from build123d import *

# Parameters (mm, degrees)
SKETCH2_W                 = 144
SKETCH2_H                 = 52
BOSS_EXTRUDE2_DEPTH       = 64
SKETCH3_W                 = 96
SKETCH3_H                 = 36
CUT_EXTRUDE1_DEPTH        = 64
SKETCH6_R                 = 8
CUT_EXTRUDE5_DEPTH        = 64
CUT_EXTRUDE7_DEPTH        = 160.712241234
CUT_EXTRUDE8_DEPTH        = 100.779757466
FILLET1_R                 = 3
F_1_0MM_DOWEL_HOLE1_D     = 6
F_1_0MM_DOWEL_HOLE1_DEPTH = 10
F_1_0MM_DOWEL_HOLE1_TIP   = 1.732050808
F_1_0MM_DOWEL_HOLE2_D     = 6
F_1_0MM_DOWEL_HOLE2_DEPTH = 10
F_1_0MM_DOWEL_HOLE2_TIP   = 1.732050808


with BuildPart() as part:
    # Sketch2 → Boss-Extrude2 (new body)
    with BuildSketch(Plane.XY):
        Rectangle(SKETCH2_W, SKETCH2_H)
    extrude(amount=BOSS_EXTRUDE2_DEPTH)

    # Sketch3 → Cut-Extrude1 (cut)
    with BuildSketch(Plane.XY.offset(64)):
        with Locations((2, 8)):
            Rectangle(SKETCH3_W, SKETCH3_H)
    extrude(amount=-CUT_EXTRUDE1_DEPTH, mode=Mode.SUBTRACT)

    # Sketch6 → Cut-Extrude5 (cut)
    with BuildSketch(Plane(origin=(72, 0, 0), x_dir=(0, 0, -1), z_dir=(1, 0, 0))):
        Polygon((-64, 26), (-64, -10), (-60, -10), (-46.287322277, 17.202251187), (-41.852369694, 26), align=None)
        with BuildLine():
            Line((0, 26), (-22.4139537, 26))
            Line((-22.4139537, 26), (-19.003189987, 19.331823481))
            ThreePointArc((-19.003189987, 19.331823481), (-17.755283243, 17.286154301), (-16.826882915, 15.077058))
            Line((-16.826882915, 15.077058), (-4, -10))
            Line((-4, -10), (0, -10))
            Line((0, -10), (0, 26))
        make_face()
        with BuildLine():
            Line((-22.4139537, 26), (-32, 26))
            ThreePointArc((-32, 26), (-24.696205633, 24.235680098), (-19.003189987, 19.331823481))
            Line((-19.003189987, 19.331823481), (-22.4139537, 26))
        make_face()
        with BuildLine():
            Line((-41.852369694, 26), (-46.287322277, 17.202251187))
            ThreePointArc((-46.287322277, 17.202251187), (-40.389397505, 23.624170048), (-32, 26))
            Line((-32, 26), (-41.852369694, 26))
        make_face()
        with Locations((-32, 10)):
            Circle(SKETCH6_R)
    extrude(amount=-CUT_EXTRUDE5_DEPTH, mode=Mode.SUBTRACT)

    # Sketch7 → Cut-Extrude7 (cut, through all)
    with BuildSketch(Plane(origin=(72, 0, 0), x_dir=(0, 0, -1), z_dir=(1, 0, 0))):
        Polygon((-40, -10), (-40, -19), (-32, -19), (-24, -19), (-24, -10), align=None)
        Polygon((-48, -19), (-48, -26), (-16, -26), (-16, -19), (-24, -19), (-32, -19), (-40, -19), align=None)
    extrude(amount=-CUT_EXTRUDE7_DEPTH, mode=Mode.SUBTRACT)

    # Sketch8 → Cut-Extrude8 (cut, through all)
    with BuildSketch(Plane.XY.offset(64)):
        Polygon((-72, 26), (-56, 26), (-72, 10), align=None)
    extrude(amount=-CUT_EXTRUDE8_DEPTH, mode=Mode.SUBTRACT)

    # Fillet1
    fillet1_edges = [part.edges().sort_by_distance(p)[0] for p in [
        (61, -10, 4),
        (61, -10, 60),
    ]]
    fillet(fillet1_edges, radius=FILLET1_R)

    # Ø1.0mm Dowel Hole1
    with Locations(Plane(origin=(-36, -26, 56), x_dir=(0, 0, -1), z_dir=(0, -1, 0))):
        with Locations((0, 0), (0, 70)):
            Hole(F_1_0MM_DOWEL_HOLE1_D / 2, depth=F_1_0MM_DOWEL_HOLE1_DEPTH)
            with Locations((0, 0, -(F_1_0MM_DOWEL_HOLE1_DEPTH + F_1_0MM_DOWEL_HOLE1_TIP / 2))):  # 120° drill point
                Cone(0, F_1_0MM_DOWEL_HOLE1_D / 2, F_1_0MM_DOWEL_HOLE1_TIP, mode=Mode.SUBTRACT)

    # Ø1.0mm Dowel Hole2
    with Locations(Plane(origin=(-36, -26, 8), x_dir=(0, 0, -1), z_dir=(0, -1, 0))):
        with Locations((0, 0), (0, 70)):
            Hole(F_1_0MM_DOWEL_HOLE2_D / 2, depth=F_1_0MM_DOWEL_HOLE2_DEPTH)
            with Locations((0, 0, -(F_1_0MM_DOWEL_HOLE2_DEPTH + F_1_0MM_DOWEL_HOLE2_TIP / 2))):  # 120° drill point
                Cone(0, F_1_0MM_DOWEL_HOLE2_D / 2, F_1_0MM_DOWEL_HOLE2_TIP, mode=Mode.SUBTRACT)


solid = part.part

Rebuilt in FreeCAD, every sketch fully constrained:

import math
import FreeCAD as App
import Part
import Sketcher
Q = App.Units.Quantity


def edges_at(feature, points):
    """Names of the edges that pass closest to the given points."""
    edges = feature.Shape.Edges
    near = lambda p: min(range(len(edges)), key=lambda i: edges[i].distToShape(Part.Vertex(*p))[0])
    return sorted({f"Edge{near(p) + 1}" for p in points})


def add_polygon(sketch, points):
    """Adds a closed chain of lines whose ends are joined by coincident constraints."""
    first, n = sketch.GeometryCount, len(points)
    for a, b in zip(points, points[1:] + points[:1]):
        sketch.addGeometry(Part.LineSegment(App.Vector(*a, 0), App.Vector(*b, 0)), False)
    for i in range(n):
        sketch.addConstraint(Sketcher.Constraint("Coincident", first + i, 2, first + (i + 1) % n, 1))

doc = App.newDocument("Part")
body = doc.addObject("PartDesign::Body", "Body")

# Sketch on XY plane
sketch1 = body.newObject("Sketcher::SketchObject", "Sketch")
sketch1.AttachmentSupport = (doc.getObject("XY_Plane"), [""])
sketch1.MapMode = "FlatFace"
add_polygon(sketch1, [(-72, 26), (-72, -26), (72, -26), (72, 26)])  # lines 0-3
sketch1.addConstraint(Sketcher.Constraint("Vertical", 0))
sketch1.addConstraint(Sketcher.Constraint("Horizontal", 1))
sketch1.addConstraint(Sketcher.Constraint("Vertical", 2))
sketch1.addConstraint(Sketcher.Constraint("Horizontal", 3))
sketch1.addConstraint(Sketcher.Constraint("Symmetric", 0, 2, 2, 2, -1, 1))
sketch1.addConstraint(Sketcher.Constraint("DistanceX", 1, 1, 1, 2, Q("144 mm")))
sketch1.addConstraint(Sketcher.Constraint("DistanceY", 0, 2, 0, 1, Q("52 mm")))
pad1 = body.newObject("PartDesign::Pad", "Pad")
pad1.Profile = sketch1
pad1.Length = 64

# Sketch on XY plane
sketch2 = body.newObject("Sketcher::SketchObject", "Sketch001")
sketch2.AttachmentSupport = (doc.getObject("XY_Plane"), [""])
sketch2.MapMode = "FlatFace"
sketch2.AttachmentOffset = App.Placement(App.Vector(0, 0, 64), App.Rotation())
add_polygon(sketch2, [(-46, 26), (-46, -10), (50, -10), (50, 26)])  # lines 0-3
sketch2.addConstraint(Sketcher.Constraint("Vertical", 0))
sketch2.addConstraint(Sketcher.Constraint("Horizontal", 1))
sketch2.addConstraint(Sketcher.Constraint("Vertical", 2))
sketch2.addConstraint(Sketcher.Constraint("Horizontal", 3))
sketch2.addConstraint(Sketcher.Constraint("DistanceX", 1, 1, 1, 2, Q("96 mm")))
sketch2.addConstraint(Sketcher.Constraint("DistanceY", 0, 2, 0, 1, Q("36 mm")))
sketch2.addConstraint(Sketcher.Constraint("DistanceX", 0, 2, -1, 1, Q("46 mm")))
sketch2.addConstraint(Sketcher.Constraint("DistanceY", 0, 2, -1, 1, Q("10 mm")))
pocket1 = body.newObject("PartDesign::Pocket", "Pocket")
pocket1.Profile = sketch2
pocket1.Length = 64

# Sketch on YZ plane
sketch3 = body.newObject("Sketcher::SketchObject", "Sketch002")
sketch3.AttachmentSupport = (doc.getObject("YZ_Plane"), [""])
sketch3.MapMode = "FlatFace"
sketch3.AttachmentOffset = App.Placement(App.Vector(0, 0, 72), App.Rotation())
sketch3.addGeometry(Part.LineSegment(App.Vector(26, 64, 0), App.Vector(-10, 64, 0)), False)
sketch3.addGeometry(Part.LineSegment(App.Vector(-10, 64, 0), App.Vector(-10, 60, 0)), False)
sketch3.addGeometry(Part.LineSegment(App.Vector(-10, 60, 0), App.Vector(17.2, 46.3, 0)), False)
sketch3.addGeometry(Part.ArcOfCircle(Part.Circle(App.Vector(10, 32, 0), App.Vector(0, 0, 1), 16), math.radians(0), math.radians(63)), False)
sketch3.addGeometry(Part.LineSegment(App.Vector(26, 32, 0), App.Vector(26, 64, 0)), False)
sketch3.addGeometry(Part.LineSegment(App.Vector(26, 0, 0), App.Vector(26, 32, 0)), False)
sketch3.addGeometry(Part.ArcOfCircle(Part.Circle(App.Vector(10, 32, 0), App.Vector(0, 0, 1), 16), math.radians(-54), math.radians(0)), False)
sketch3.addGeometry(Part.ArcOfCircle(Part.Circle(App.Vector(10, 32, 0), App.Vector(0, 0, 1), 16), math.radians(-71.5), math.radians(-54.32)), False)
sketch3.addGeometry(Part.LineSegment(App.Vector(15.1, 16.8, 0), App.Vector(-10, 4, 0)), False)
sketch3.addGeometry(Part.LineSegment(App.Vector(-10, 4, 0), App.Vector(-10, 0, 0)), False)
sketch3.addGeometry(Part.LineSegment(App.Vector(-10, 0, 0), App.Vector(26, 0, 0)), False)
sketch3.addGeometry(Part.Circle(App.Vector(10, 32, 0), App.Vector(0, 0, 1), 8), False)
sketch3.addConstraint(Sketcher.Constraint("Coincident", 0, 2, 1, 1))
sketch3.addConstraint(Sketcher.Constraint("Coincident", 1, 2, 2, 1))
sketch3.addConstraint(Sketcher.Constraint("Tangent", 2, 2, 3, 2))
sketch3.addConstraint(Sketcher.Constraint("Tangent", 3, 1, 4, 1))
sketch3.addConstraint(Sketcher.Constraint("Coincident", 4, 2, 0, 1))
sketch3.addConstraint(Sketcher.Constraint("Tangent", 5, 2, 6, 2))
sketch3.addConstraint(Sketcher.Constraint("Tangent", 6, 1, 7, 2))
sketch3.addConstraint(Sketcher.Constraint("Coincident", 7, 1, 8, 1))
sketch3.addConstraint(Sketcher.Constraint("Coincident", 8, 2, 9, 1))
sketch3.addConstraint(Sketcher.Constraint("Coincident", 9, 2, 10, 1))
sketch3.addConstraint(Sketcher.Constraint("Coincident", 10, 2, 5, 1))
sketch3.addConstraint(Sketcher.Constraint("Horizontal", 0))
sketch3.addConstraint(Sketcher.Constraint("Vertical", 1))
sketch3.addConstraint(Sketcher.Constraint("Vertical", 4))
sketch3.addConstraint(Sketcher.Constraint("Vertical", 5))
sketch3.addConstraint(Sketcher.Constraint("Vertical", 9))
sketch3.addConstraint(Sketcher.Constraint("Horizontal", 10))
sketch3.addConstraint(Sketcher.Constraint("Coincident", 6, 3, 3, 3))
sketch3.addConstraint(Sketcher.Constraint("Coincident", 11, 3, 3, 3))
sketch3.addConstraint(Sketcher.Constraint("Equal", 3, 6))
sketch3.addConstraint(Sketcher.Constraint("Equal", 6, 7))
sketch3.addConstraint(Sketcher.Constraint("PointOnObject", 9, 2, -1))
sketch3.addConstraint(Sketcher.Constraint("Vertical", 1, 2, 8, 2))
sketch3.addConstraint(Sketcher.Constraint("Equal", 4, 5))
sketch3.addConstraint(Sketcher.Constraint("Equal", 1, 9))
sketch3.addConstraint(Sketcher.Constraint("Diameter", 11, Q("16 mm")))
sketch3.addConstraint(Sketcher.Constraint("Radius", 3, Q("16 mm")))
sketch3.addConstraint(Sketcher.Constraint("DistanceX", 0, 2, 0, 1, Q("36 mm")))
sketch3.addConstraint(Sketcher.Constraint("DistanceY", 1, 2, 1, 1, Q("4 mm")))
sketch3.addConstraint(Sketcher.Constraint("DistanceY", 4, 1, 4, 2, Q("32 mm")))
sketch3.addConstraint(Sketcher.Constraint("DistanceX", -1, 1, 3, 3, Q("10 mm")))
sketch3.addConstraint(Sketcher.Constraint("Distance", 8, Q("28.16714 mm")))
sketch3.addConstraint(Sketcher.Constraint("DistanceY", -1, 1, 6, 1, Q("19.00319 mm")))
pocket2 = body.newObject("PartDesign::Pocket", "Pocket001")
pocket2.Profile = sketch3
pocket2.Length = 64

# Sketch on YZ plane
sketch4 = body.newObject("Sketcher::SketchObject", "Sketch003")
sketch4.AttachmentSupport = (doc.getObject("YZ_Plane"), [""])
sketch4.MapMode = "FlatFace"
sketch4.AttachmentOffset = App.Placement(App.Vector(0, 0, 72), App.Rotation())
add_polygon(sketch4, [(-10, 40), (-19, 40), (-19, 48), (-26, 48), (-26, 16), (-19, 16), (-19, 24), (-10, 24)])  # lines 0-7
sketch4.addConstraint(Sketcher.Constraint("Horizontal", 0))
sketch4.addConstraint(Sketcher.Constraint("Vertical", 1))
sketch4.addConstraint(Sketcher.Constraint("Horizontal", 2))
sketch4.addConstraint(Sketcher.Constraint("Vertical", 3))
sketch4.addConstraint(Sketcher.Constraint("Horizontal", 4))
sketch4.addConstraint(Sketcher.Constraint("Vertical", 5))
sketch4.addConstraint(Sketcher.Constraint("Horizontal", 6))
sketch4.addConstraint(Sketcher.Constraint("Vertical", 7))
sketch4.addConstraint(Sketcher.Constraint("Vertical", 1, 2, 4, 2))
sketch4.addConstraint(Sketcher.Constraint("Equal", 1, 5))
sketch4.addConstraint(Sketcher.Constraint("DistanceX", 0, 2, 0, 1, Q("9 mm")))
sketch4.addConstraint(Sketcher.Constraint("DistanceX", 2, 2, 2, 1, Q("7 mm")))
sketch4.addConstraint(Sketcher.Constraint("DistanceY", 1, 1, 1, 2, Q("8 mm")))
sketch4.addConstraint(Sketcher.Constraint("DistanceY", 3, 2, 3, 1, Q("32 mm")))
sketch4.addConstraint(Sketcher.Constraint("DistanceX", 0, 2, -1, 1, Q("19 mm")))
sketch4.addConstraint(Sketcher.Constraint("DistanceY", -1, 1, 0, 2, Q("40 mm")))
pocket3 = body.newObject("PartDesign::Pocket", "Pocket002")
pocket3.Profile = sketch4
pocket3.Type = "ThroughAll"

# Sketch on XY plane
sketch5 = body.newObject("Sketcher::SketchObject", "Sketch004")
sketch5.AttachmentSupport = (doc.getObject("XY_Plane"), [""])
sketch5.MapMode = "FlatFace"
sketch5.AttachmentOffset = App.Placement(App.Vector(0, 0, 64), App.Rotation())
add_polygon(sketch5, [(-56, 26), (-72, 26), (-72, 10)])  # lines 0-2
sketch5.addConstraint(Sketcher.Constraint("Horizontal", 0))
sketch5.addConstraint(Sketcher.Constraint("Vertical", 1))
sketch5.addConstraint(Sketcher.Constraint("Equal", 0, 1))
sketch5.addConstraint(Sketcher.Constraint("DistanceX", 0, 2, 0, 1, Q("16 mm")))
sketch5.addConstraint(Sketcher.Constraint("DistanceX", 0, 2, -1, 1, Q("72 mm")))
sketch5.addConstraint(Sketcher.Constraint("DistanceY", -1, 1, 0, 2, Q("26 mm")))
pocket4 = body.newObject("PartDesign::Pocket", "Pocket003")
pocket4.Profile = sketch5
pocket4.Type = "ThroughAll"
doc.recompute()

fillet = body.newObject("PartDesign::Fillet", "Fillet")
fillet.Base = (pocket4, edges_at(pocket4, [(61, -10, 4), (61, -10, 60)]))
fillet.Radius = 3

# Sketch on XZ plane
sketch6 = body.newObject("Sketcher::SketchObject", "Sketch005")
sketch6.AttachmentSupport = (doc.getObject("XZ_Plane"), [""])
sketch6.MapMode = "FlatFace"
sketch6.AttachmentOffset = App.Placement(App.Vector(0, 0, 26), App.Rotation())
sketch6.addGeometry(Part.Circle(App.Vector(-36, 56, 0), App.Vector(0, 0, 1), 3), False)
sketch6.addGeometry(Part.Circle(App.Vector(34, 56, 0), App.Vector(0, 0, 1), 3), False)
sketch6.addConstraint(Sketcher.Constraint("Equal", 0, 1))
sketch6.addConstraint(Sketcher.Constraint("Horizontal", 0, 3, 1, 3))
sketch6.addConstraint(Sketcher.Constraint("Diameter", 0, Q("6 mm")))
sketch6.addConstraint(Sketcher.Constraint("DistanceX", 0, 3, -1, 1, Q("36 mm")))
sketch6.addConstraint(Sketcher.Constraint("DistanceY", -1, 1, 0, 3, Q("56 mm")))
sketch6.addConstraint(Sketcher.Constraint("DistanceX", -1, 1, 1, 3, Q("34 mm")))
doc.recompute()
hole = body.newObject("PartDesign::Hole", "Hole")
hole.Profile = sketch6
hole.ThreadType = "None"
hole.Diameter = 6
hole.DepthType = "Dimension"
hole.Depth = 10
hole.DrillPoint = "Angled"
hole.DrillPointAngle = 120

# Sketch on XZ plane
sketch7 = body.newObject("Sketcher::SketchObject", "Sketch006")
sketch7.AttachmentSupport = (doc.getObject("XZ_Plane"), [""])
sketch7.MapMode = "FlatFace"
sketch7.AttachmentOffset = App.Placement(App.Vector(0, 0, 26), App.Rotation())
sketch7.addGeometry(Part.Circle(App.Vector(-36, 8, 0), App.Vector(0, 0, 1), 3), False)
sketch7.addGeometry(Part.Circle(App.Vector(34, 8, 0), App.Vector(0, 0, 1), 3), False)
sketch7.addConstraint(Sketcher.Constraint("Equal", 0, 1))
sketch7.addConstraint(Sketcher.Constraint("Horizontal", 0, 3, 1, 3))
sketch7.addConstraint(Sketcher.Constraint("Diameter", 0, Q("6 mm")))
sketch7.addConstraint(Sketcher.Constraint("DistanceX", 0, 3, -1, 1, Q("36 mm")))
sketch7.addConstraint(Sketcher.Constraint("DistanceY", -1, 1, 0, 3, Q("8 mm")))
sketch7.addConstraint(Sketcher.Constraint("DistanceX", -1, 1, 1, 3, Q("34 mm")))
doc.recompute()
hole2 = body.newObject("PartDesign::Hole", "Hole001")
hole2.Profile = sketch7
hole2.ThreadType = "None"
hole2.Diameter = 6
hole2.DepthType = "Dimension"
hole2.Depth = 10
hole2.DrillPoint = "Angled"
hole2.DrillPointAngle = 120

doc.recompute()
